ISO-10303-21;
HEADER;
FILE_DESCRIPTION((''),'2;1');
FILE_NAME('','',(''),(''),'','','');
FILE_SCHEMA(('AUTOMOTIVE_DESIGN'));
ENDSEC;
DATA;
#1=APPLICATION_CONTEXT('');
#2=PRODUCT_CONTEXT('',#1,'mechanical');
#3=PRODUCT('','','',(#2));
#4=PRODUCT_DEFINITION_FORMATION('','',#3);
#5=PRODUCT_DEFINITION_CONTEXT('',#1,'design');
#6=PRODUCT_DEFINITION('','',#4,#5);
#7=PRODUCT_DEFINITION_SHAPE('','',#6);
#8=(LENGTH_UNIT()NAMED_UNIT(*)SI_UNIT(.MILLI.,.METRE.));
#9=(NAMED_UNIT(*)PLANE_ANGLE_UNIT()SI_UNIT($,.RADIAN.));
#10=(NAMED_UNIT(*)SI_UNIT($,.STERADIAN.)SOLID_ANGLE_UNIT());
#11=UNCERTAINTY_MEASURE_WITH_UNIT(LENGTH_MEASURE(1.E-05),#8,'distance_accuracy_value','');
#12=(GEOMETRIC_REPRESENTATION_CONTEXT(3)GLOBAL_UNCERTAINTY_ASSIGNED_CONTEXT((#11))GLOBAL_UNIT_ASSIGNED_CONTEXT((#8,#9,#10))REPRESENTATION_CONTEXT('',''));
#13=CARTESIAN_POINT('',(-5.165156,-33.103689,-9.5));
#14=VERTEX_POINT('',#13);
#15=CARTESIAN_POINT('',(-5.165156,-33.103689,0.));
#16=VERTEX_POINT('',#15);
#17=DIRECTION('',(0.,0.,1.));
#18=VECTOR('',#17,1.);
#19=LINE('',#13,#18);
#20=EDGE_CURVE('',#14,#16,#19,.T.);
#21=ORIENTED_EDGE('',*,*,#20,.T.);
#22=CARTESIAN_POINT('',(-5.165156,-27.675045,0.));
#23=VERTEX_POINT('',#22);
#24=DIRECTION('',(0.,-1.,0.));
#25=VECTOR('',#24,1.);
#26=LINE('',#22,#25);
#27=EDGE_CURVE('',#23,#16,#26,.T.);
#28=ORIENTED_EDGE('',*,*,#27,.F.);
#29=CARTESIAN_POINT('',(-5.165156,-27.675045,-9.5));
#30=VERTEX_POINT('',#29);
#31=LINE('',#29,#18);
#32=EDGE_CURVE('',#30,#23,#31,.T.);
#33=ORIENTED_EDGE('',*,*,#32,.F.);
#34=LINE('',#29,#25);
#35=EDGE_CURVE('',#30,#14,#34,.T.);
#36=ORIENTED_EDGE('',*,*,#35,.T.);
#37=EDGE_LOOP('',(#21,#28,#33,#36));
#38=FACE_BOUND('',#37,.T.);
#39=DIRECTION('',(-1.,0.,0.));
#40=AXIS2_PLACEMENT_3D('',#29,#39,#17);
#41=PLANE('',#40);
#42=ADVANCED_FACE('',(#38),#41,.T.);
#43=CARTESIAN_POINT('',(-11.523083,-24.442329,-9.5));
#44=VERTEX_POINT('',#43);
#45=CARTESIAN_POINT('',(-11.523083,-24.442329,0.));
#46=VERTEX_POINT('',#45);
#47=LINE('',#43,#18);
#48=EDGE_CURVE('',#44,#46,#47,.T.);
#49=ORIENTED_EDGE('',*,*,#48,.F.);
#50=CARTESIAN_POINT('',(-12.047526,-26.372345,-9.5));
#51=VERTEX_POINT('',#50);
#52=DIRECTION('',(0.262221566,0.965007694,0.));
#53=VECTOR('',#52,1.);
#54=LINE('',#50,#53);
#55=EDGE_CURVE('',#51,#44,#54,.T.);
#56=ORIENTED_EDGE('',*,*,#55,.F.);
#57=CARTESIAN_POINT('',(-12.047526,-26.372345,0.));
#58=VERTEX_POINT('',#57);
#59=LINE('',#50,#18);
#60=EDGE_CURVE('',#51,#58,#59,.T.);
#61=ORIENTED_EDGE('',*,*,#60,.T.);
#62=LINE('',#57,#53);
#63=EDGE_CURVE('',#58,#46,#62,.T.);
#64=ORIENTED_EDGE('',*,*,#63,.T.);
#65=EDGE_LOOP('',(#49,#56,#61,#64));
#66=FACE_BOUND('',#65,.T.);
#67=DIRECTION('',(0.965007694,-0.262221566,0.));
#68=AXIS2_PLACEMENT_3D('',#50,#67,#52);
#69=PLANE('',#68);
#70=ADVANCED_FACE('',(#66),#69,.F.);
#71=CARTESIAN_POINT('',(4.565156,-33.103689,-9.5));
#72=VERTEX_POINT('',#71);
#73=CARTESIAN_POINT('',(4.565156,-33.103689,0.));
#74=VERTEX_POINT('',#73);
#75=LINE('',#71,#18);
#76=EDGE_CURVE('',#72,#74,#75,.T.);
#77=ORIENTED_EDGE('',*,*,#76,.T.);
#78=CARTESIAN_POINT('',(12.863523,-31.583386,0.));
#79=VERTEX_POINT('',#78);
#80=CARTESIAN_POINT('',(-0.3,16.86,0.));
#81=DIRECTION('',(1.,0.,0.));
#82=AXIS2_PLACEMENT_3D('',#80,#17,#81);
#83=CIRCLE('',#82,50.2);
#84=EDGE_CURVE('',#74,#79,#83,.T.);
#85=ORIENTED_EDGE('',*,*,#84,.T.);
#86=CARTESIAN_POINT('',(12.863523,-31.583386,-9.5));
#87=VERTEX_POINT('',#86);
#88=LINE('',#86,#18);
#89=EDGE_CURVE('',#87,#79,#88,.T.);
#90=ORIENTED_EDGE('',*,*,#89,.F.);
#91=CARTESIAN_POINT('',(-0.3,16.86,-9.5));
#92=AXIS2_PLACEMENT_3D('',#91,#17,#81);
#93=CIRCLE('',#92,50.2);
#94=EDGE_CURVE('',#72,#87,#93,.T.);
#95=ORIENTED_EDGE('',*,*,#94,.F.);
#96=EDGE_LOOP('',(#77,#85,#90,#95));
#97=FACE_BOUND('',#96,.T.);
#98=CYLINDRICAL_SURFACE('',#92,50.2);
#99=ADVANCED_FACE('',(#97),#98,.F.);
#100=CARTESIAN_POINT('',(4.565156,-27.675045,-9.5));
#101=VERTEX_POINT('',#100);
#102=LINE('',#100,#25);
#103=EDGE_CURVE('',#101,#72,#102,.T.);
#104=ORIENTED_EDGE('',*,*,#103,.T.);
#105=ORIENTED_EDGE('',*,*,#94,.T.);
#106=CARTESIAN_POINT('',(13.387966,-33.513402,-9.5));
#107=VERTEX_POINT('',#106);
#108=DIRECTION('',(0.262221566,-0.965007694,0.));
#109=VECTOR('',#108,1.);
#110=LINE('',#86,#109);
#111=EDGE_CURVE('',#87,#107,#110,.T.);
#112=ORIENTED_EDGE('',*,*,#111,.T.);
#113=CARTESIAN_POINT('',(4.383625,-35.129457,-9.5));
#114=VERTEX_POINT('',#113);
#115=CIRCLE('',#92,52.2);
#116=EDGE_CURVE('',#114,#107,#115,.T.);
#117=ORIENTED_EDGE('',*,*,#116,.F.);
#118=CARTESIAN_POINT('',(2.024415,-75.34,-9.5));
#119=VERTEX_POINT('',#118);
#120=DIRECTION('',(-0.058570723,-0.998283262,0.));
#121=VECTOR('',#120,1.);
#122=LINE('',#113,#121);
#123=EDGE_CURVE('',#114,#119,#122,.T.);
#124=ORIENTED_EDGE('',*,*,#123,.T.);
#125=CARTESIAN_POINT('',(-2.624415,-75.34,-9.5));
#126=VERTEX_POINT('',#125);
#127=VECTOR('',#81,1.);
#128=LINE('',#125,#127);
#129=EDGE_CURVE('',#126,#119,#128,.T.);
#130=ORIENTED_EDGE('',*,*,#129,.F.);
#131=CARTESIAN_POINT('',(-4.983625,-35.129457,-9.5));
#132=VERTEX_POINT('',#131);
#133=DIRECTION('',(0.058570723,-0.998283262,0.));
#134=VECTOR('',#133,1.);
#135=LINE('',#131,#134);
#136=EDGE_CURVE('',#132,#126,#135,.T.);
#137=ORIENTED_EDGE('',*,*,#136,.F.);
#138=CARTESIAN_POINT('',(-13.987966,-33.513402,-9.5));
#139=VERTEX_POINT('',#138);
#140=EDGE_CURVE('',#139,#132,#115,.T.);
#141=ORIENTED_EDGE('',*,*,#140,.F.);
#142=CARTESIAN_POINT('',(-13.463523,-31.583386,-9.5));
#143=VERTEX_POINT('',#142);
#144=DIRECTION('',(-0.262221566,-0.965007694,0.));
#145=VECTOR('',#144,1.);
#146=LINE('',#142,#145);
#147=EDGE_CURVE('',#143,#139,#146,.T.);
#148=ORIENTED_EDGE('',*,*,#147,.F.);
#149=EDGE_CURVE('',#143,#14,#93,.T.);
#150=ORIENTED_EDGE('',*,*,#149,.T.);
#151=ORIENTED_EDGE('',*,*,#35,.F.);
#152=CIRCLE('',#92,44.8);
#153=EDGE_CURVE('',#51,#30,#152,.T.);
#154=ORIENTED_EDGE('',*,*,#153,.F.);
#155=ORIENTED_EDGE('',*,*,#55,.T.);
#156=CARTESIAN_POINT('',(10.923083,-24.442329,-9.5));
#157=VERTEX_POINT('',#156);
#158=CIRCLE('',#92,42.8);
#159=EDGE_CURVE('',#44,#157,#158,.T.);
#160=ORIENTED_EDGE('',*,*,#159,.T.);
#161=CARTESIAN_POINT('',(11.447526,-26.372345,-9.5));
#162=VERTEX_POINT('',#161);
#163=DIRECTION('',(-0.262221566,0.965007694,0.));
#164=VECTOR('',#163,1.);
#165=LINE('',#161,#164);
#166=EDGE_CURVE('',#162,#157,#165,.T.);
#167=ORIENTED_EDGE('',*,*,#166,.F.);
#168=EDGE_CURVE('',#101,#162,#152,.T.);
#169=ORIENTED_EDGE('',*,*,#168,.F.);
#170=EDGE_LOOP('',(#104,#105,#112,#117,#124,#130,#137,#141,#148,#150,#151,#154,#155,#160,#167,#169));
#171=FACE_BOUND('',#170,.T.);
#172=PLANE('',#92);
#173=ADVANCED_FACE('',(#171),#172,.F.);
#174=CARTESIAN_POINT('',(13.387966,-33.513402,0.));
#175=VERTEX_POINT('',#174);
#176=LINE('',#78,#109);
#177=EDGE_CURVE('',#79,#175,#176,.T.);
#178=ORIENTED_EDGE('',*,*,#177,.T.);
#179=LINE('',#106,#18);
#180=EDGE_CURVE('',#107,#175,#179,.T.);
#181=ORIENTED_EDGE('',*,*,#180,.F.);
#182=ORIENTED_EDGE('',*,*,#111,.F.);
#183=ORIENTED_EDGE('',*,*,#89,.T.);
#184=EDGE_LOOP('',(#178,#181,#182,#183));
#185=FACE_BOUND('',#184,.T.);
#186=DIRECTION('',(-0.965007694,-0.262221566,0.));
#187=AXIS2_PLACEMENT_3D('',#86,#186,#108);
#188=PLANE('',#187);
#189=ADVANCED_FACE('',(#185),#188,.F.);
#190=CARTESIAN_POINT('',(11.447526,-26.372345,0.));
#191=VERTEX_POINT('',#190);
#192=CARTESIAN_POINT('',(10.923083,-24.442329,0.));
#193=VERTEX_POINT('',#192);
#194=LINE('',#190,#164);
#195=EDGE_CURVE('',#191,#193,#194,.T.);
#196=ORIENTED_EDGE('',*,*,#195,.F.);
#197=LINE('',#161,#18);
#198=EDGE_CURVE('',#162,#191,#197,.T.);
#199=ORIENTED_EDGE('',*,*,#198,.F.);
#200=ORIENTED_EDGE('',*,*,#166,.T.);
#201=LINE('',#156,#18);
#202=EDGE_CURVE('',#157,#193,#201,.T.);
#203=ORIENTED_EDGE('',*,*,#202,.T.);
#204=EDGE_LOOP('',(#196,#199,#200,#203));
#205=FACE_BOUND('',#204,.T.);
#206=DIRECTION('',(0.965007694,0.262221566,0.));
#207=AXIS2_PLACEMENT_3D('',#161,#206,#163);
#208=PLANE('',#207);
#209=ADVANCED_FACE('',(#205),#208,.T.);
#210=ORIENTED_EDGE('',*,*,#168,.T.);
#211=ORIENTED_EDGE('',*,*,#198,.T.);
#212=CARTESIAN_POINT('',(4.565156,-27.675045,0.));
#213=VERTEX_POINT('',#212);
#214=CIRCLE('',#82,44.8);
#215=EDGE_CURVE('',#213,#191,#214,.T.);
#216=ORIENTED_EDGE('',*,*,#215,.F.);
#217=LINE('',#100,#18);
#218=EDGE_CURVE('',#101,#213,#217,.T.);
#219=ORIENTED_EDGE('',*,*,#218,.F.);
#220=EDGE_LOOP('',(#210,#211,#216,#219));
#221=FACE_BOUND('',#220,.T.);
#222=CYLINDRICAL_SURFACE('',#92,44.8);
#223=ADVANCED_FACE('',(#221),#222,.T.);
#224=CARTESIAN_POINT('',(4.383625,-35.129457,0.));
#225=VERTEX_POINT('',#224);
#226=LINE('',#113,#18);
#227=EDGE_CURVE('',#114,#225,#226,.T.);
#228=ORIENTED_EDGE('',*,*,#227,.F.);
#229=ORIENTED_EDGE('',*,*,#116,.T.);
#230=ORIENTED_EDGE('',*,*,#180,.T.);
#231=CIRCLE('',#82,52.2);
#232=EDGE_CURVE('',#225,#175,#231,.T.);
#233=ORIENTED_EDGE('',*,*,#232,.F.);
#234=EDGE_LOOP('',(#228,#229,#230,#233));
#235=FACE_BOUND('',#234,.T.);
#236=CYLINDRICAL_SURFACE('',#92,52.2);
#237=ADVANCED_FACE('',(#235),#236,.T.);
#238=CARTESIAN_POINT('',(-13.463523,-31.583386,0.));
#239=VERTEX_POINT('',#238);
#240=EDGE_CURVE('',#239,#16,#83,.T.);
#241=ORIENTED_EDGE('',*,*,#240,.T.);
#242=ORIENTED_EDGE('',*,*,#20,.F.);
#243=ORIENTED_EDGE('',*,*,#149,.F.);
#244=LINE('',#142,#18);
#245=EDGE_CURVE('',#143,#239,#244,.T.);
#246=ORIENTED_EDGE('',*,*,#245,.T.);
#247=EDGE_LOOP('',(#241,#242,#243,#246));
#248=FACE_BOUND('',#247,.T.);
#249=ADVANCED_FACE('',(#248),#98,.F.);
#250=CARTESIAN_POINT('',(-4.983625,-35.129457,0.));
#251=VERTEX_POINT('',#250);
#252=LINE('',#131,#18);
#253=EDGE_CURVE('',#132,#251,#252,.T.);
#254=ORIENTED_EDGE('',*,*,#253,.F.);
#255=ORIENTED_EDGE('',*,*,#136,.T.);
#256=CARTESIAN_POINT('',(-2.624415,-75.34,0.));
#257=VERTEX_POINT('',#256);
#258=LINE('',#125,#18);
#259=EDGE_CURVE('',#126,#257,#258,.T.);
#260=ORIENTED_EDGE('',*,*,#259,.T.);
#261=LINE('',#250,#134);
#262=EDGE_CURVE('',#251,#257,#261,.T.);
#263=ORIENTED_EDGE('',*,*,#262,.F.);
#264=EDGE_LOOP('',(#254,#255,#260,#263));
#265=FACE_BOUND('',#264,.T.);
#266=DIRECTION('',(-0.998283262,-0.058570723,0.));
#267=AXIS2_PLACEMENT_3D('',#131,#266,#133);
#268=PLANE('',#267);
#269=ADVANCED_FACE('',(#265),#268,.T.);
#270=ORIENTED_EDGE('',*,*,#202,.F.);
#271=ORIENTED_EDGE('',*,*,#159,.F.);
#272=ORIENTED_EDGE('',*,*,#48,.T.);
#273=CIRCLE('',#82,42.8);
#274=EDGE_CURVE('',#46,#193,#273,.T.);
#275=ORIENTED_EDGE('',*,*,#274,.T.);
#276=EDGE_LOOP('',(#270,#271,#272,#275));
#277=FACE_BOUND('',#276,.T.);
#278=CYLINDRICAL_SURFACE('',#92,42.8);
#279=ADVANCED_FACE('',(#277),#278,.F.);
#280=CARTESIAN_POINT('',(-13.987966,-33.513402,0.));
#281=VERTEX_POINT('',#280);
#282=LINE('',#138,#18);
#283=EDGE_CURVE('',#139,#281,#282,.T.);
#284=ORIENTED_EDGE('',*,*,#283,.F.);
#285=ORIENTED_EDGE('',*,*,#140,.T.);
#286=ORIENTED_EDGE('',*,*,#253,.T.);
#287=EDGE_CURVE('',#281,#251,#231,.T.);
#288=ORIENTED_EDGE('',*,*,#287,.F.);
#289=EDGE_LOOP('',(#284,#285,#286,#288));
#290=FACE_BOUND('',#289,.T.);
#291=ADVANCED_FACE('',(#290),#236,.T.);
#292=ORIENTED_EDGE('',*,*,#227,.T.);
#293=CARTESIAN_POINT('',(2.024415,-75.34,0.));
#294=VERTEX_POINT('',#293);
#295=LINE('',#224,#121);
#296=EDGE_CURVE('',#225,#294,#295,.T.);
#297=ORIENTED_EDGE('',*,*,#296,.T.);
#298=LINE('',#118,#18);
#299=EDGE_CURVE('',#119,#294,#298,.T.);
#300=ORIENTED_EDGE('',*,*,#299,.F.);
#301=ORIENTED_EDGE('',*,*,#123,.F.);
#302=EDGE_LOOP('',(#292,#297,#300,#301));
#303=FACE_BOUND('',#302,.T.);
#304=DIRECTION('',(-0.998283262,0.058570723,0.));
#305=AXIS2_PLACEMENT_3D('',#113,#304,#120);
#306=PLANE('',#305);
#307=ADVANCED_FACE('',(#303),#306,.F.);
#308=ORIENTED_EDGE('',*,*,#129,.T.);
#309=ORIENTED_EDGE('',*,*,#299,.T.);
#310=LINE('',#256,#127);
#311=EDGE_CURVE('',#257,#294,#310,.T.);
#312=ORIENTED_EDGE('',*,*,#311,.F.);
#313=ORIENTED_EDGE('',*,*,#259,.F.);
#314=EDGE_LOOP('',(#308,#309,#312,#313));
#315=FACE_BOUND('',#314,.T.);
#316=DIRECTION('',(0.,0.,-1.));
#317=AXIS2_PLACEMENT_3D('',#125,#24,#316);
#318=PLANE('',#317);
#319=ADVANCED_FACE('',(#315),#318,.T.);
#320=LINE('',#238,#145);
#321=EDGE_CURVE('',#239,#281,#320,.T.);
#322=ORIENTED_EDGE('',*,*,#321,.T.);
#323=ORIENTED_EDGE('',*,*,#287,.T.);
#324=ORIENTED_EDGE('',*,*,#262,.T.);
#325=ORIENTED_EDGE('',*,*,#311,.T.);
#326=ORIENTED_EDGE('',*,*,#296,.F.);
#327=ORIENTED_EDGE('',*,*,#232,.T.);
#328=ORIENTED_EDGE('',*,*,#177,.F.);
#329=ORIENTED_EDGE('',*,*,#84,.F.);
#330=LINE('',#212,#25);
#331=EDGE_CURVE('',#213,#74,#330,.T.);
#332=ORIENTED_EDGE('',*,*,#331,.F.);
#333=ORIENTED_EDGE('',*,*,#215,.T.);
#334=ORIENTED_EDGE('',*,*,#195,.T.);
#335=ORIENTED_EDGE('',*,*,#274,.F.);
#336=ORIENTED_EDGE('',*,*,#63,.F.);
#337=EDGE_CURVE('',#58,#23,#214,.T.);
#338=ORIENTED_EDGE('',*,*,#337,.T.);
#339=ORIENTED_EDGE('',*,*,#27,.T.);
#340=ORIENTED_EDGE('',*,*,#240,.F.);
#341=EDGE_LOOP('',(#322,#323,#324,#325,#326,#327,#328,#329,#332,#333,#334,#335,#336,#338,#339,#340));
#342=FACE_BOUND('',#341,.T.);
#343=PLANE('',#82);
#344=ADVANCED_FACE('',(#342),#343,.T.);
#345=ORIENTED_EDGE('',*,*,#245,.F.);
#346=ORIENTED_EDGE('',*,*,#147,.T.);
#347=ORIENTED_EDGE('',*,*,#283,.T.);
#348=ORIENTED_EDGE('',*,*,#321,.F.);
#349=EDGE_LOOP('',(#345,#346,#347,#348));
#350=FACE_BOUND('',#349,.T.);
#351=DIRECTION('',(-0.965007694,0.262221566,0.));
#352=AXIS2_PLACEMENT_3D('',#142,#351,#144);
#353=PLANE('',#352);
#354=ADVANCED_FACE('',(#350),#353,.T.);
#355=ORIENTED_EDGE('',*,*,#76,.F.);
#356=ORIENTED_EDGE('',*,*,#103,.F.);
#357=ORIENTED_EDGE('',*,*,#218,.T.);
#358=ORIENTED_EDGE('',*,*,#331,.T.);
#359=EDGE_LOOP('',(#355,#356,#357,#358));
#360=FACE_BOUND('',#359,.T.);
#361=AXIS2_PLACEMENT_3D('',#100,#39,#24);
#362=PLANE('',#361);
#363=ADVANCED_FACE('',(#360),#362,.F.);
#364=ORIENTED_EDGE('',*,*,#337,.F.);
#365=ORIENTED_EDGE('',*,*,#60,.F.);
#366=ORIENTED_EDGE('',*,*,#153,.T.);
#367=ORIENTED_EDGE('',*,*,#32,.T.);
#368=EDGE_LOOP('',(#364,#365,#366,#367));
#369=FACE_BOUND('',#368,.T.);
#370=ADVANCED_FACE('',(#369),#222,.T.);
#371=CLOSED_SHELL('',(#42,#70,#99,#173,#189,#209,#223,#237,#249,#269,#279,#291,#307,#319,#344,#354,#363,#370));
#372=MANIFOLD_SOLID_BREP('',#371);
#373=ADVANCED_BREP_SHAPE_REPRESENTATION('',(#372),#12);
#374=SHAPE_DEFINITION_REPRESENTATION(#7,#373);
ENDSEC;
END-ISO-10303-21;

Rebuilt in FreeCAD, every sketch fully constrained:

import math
import FreeCAD as App
import Part
import Sketcher
from FreeCAD import Vector

doc = App.newDocument("Part")
body = doc.addObject("PartDesign::Body", "Body")

# Sketch on XY plane
sketch1 = body.newObject("Sketcher::SketchObject", "Sketch")
sketch1.AttachmentSupport = (doc.getObject("XY_Plane"), [""])
sketch1.MapMode = "FlatFace"
sketch1.addGeometry(Part.LineSegment(Vector(-5.2, -27.7, 0), Vector(-5.2, -33.1, 0)), False)
sketch1.addGeometry(Part.ArcOfCircle(Part.Circle(Vector(-0.3, 16.9, 0), Vector(0, 0, 1), 50.2), math.radians(-105.2), math.radians(-95.56)), False)
sketch1.addGeometry(Part.LineSegment(Vector(-13.5, -31.6, 0), Vector(-14, -33.5, 0)), False)
sketch1.addGeometry(Part.ArcOfCircle(Part.Circle(Vector(-0.3, 16.9, 0), Vector(0, 0, 1), 52.2), math.radians(-105.2), math.radians(-95.15)), False)
sketch1.addGeometry(Part.LineSegment(Vector(-5, -35.1, 0), Vector(-2.6, -75.3, 0)), False)
sketch1.addGeometry(Part.LineSegment(Vector(-2.6, -75.3, 0), Vector(2, -75.3, 0)), False)
sketch1.addGeometry(Part.LineSegment(Vector(2, -75.3, 0), Vector(4.4, -35.1, 0)), False)
sketch1.addGeometry(Part.ArcOfCircle(Part.Circle(Vector(-0.3, 16.9, 0), Vector(0, 0, 1), 52.2), math.radians(-84.85), math.radians(-74.8)), False)
sketch1.addGeometry(Part.LineSegment(Vector(13.4, -33.5, 0), Vector(12.9, -31.6, 0)), False)
sketch1.addGeometry(Part.ArcOfCircle(Part.Circle(Vector(-0.3, 16.9, 0), Vector(0, 0, 1), 50.2), math.radians(-84.44), math.radians(-74.8)), False)
sketch1.addGeometry(Part.LineSegment(Vector(4.6, -33.1, 0), Vector(4.6, -27.7, 0)), False)
sketch1.addGeometry(Part.ArcOfCircle(Part.Circle(Vector(-0.3, 16.9, 0), Vector(0, 0, 1), 44.8), math.radians(-83.77), math.radians(-74.8)), False)
sketch1.addGeometry(Part.LineSegment(Vector(11.4, -26.4, 0), Vector(10.9, -24.4, 0)), False)
sketch1.addGeometry(Part.ArcOfCircle(Part.Circle(Vector(-0.3, 16.9, 0), Vector(0, 0, 1), 42.8), math.radians(-105), math.radians(-75)), False)
sketch1.addGeometry(Part.LineSegment(Vector(-11.5, -24.4, 0), Vector(-12, -26.4, 0)), False)
sketch1.addGeometry(Part.ArcOfCircle(Part.Circle(Vector(-0.3, 16.9, 0), Vector(0, 0, 1), 44.8), math.radians(-105.2), math.radians(-96.23)), False)
sketch1.addConstraint(Sketcher.Constraint("Coincident", 0, 2, 1, 2))
sketch1.addConstraint(Sketcher.Constraint("Coincident", 1, 1, 2, 1))
sketch1.addConstraint(Sketcher.Constraint("Coincident", 2, 2, 3, 1))
sketch1.addConstraint(Sketcher.Constraint("Coincident", 3, 2, 4, 1))
sketch1.addConstraint(Sketcher.Constraint("Coincident", 4, 2, 5, 1))
sketch1.addConstraint(Sketcher.Constraint("Coincident", 5, 2, 6, 1))
sketch1.addConstraint(Sketcher.Constraint("Coincident", 6, 2, 7, 1))
sketch1.addConstraint(Sketcher.Constraint("Coincident", 7, 2, 8, 1))
sketch1.addConstraint(Sketcher.Constraint("Coincident", 8, 2, 9, 2))
sketch1.addConstraint(Sketcher.Constraint("Coincident", 9, 1, 10, 1))
sketch1.addConstraint(Sketcher.Constraint("Coincident", 10, 2, 11, 1))
sketch1.addConstraint(Sketcher.Constraint("Coincident", 11, 2, 12, 1))
sketch1.addConstraint(Sketcher.Constraint("Coincident", 12, 2, 13, 2))
sketch1.addConstraint(Sketcher.Constraint("Coincident", 13, 1, 14, 1))
sketch1.addConstraint(Sketcher.Constraint("Coincident", 14, 2, 15, 1))
sketch1.addConstraint(Sketcher.Constraint("Coincident", 15, 2, 0, 1))
sketch1.addConstraint(Sketcher.Constraint("Vertical", 0))
sketch1.addConstraint(Sketcher.Constraint("Horizontal", 5))
sketch1.addConstraint(Sketcher.Constraint("Vertical", 10))
sketch1.addConstraint(Sketcher.Constraint("Coincident", 3, 3, 1, 3))
sketch1.addConstraint(Sketcher.Constraint("Coincident", 7, 3, 1, 3))
sketch1.addConstraint(Sketcher.Constraint("Coincident", 9, 3, 1, 3))
sketch1.addConstraint(Sketcher.Constraint("Coincident", 11, 3, 1, 3))
sketch1.addConstraint(Sketcher.Constraint("Coincident", 13, 3, 1, 3))
sketch1.addConstraint(Sketcher.Constraint("Coincident", 15, 3, 1, 3))
sketch1.addConstraint(Sketcher.Constraint("Equal", 3, 7))
sketch1.addConstraint(Sketcher.Constraint("Equal", 1, 9))
sketch1.addConstraint(Sketcher.Constraint("Equal", 11, 15))
sketch1.addConstraint(Sketcher.Constraint("Parallel", 8, 12))
sketch1.addConstraint(Sketcher.Constraint("Parallel", 2, 14))
sketch1.addConstraint(Sketcher.Constraint("Horizontal", 3, 2, 6, 2))
sketch1.addConstraint(Sketcher.Constraint("Horizontal", 2, 2, 7, 2))
sketch1.addConstraint(Sketcher.Constraint("Horizontal", 1, 1, 8, 2))
sketch1.addConstraint(Sketcher.Constraint("Horizontal", 0, 2, 9, 1))
sketch1.addConstraint(Sketcher.Constraint("Horizontal", 12, 2, 13, 1))
sketch1.addConstraint(Sketcher.Constraint("Equal", 4, 6))
sketch1.addConstraint(Sketcher.Constraint("Equal", 8, 12))
sketch1.addConstraint(Sketcher.Constraint("Radius", 1, 50.2))
sketch1.addConstraint(Sketcher.Constraint("Radius", 3, 52.2))
sketch1.addConstraint(Sketcher.Constraint("Radius", 11, 44.8))
sketch1.addConstraint(Sketcher.Constraint("DistanceX", 1, 3, -1, 1, 0.3))
sketch1.addConstraint(Sketcher.Constraint("DistanceY", 4, 2, 3, 3, 92.2))
sketch1.addConstraint(Sketcher.Constraint("DistanceY", -1, 1, 1, 3, 16.86))
sketch1.addConstraint(Sketcher.Constraint("DistanceX", 5, 1, 5, 2, 4.648829))
sketch1.addConstraint(Sketcher.Constraint("DistanceY", 2, 2, -1, 1, 33.513402))
sketch1.addConstraint(Sketcher.Constraint("DistanceY", 10, 2, 11, 2, 1.302701))
sketch1.addConstraint(Sketcher.Constraint("DistanceX", 6, 2, 11, 2, 7.063901))
sketch1.addConstraint(Sketcher.Constraint("DistanceY", 0, 2, 0, 1, 5.428644))
sketch1.addConstraint(Sketcher.Constraint("DistanceY", 12, 2, -1, 1, 24.442329))
pad1 = body.newObject("PartDesign::Pad", "Pad")
pad1.Profile = sketch1
pad1.Length = 9.5
pad1.Reversed = True

doc.recompute()
